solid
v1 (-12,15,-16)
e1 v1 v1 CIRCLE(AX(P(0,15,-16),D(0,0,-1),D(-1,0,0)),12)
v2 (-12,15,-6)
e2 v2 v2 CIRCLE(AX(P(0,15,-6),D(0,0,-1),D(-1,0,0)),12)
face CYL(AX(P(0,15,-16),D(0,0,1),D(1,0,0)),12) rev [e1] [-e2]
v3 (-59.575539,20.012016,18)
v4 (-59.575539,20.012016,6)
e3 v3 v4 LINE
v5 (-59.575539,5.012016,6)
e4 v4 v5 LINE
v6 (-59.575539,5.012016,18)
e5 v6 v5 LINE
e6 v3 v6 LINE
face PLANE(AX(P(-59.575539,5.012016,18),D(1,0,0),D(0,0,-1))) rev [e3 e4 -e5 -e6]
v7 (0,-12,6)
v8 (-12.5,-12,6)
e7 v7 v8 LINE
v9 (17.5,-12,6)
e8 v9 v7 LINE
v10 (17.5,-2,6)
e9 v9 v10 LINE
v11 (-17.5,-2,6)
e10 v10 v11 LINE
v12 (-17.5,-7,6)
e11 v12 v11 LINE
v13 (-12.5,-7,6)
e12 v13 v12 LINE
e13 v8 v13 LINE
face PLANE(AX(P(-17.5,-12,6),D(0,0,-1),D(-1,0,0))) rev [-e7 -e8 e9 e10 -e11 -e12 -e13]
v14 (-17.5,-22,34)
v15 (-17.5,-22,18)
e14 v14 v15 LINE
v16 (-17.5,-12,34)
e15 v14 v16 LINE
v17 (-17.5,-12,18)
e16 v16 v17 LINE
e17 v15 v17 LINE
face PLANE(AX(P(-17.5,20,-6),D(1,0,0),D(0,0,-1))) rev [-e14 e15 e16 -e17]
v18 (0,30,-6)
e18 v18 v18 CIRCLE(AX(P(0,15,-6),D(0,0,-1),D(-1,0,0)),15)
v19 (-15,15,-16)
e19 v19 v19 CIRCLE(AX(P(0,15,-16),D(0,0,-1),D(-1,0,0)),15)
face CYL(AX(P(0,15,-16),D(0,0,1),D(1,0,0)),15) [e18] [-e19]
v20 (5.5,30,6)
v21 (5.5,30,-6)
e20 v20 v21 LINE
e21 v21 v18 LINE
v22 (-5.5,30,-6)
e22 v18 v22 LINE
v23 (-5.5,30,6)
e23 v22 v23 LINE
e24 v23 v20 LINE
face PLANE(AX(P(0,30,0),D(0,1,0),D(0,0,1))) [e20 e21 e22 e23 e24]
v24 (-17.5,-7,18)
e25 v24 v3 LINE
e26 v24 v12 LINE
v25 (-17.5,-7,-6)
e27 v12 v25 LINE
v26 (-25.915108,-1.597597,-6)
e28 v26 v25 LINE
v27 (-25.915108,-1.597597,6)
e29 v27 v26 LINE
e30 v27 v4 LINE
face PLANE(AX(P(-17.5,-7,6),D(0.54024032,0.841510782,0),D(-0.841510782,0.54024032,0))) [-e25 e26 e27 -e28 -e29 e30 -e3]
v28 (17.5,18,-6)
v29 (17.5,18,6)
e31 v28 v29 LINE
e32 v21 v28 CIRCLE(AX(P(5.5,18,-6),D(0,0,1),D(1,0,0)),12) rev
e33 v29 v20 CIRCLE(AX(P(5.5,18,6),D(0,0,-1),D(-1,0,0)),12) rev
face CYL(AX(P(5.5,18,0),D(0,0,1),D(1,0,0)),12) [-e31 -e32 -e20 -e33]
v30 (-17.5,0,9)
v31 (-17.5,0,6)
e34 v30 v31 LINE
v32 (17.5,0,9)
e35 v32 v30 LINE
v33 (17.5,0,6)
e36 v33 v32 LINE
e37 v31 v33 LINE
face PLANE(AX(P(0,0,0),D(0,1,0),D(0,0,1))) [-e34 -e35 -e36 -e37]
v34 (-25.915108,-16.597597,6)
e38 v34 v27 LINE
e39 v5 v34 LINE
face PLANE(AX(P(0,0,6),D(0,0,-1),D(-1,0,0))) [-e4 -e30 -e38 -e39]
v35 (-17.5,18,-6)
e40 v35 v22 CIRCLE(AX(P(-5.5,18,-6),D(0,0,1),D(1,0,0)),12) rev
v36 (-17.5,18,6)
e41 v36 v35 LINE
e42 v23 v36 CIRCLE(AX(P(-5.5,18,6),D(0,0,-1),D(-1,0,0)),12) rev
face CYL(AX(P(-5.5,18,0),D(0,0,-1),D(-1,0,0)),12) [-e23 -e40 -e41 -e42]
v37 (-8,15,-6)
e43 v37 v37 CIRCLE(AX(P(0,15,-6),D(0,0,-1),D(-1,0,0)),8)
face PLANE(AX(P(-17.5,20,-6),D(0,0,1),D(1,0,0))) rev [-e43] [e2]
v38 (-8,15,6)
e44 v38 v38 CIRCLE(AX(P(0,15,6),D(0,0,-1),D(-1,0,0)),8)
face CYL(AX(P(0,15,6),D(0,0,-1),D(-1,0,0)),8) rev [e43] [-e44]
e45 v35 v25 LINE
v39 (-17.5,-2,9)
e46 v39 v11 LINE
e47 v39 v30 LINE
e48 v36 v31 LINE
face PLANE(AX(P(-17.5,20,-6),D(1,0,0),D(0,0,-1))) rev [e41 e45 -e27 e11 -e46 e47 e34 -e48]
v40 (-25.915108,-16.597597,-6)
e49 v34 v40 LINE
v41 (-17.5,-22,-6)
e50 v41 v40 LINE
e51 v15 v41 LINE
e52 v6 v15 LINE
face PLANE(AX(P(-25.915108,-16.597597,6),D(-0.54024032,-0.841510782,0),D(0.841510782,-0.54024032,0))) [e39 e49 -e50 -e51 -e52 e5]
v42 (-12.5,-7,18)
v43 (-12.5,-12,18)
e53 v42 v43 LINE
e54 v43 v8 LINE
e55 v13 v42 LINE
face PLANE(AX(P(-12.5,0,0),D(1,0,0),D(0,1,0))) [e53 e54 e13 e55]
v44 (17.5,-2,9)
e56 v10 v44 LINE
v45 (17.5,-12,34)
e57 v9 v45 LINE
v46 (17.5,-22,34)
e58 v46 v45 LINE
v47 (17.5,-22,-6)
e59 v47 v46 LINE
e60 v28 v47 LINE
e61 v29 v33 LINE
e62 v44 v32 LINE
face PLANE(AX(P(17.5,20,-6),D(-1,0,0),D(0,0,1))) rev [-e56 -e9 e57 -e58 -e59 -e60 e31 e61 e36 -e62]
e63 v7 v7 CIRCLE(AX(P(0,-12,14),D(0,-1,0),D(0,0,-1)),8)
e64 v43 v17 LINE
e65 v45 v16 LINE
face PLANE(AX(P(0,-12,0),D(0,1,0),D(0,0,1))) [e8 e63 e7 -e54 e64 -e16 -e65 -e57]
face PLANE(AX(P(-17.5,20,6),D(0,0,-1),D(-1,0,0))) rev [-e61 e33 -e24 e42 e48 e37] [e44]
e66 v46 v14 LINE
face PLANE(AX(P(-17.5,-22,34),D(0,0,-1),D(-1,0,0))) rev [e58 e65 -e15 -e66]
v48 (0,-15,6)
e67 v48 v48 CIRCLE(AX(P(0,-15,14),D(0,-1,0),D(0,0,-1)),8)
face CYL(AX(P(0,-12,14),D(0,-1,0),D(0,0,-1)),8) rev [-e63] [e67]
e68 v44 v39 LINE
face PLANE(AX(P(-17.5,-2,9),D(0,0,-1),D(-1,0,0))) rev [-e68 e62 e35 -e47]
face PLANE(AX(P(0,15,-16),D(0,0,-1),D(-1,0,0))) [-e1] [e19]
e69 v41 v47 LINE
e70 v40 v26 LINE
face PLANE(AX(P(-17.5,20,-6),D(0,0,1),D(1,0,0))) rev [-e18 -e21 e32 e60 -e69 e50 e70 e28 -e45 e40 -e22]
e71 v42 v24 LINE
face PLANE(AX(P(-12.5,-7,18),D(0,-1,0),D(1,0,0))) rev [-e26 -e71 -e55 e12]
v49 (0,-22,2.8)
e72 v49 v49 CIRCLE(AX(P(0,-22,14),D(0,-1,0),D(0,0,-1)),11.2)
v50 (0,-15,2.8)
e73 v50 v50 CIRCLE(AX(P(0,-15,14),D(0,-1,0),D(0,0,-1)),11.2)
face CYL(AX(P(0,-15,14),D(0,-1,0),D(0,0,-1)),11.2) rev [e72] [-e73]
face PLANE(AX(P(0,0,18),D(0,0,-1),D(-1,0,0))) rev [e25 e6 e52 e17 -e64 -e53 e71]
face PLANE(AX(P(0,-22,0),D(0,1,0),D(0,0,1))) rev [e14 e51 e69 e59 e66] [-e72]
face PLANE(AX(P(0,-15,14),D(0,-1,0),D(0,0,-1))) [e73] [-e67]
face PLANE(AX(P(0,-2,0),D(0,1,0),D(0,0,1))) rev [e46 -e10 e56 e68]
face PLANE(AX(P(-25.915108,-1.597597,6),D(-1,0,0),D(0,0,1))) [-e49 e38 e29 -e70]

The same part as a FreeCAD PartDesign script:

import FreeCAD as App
import Part
import Sketcher

V = App.Vector
Q = App.Units.Quantity


def edges_at(feature, points):
    """Names of the edges that pass closest to the given points."""
    edges = feature.Shape.Edges
    near = lambda p: min(range(len(edges)), key=lambda i: edges[i].distToShape(Part.Vertex(*p))[0])
    return sorted({f"Edge{near(p) + 1}" for p in points})

doc = App.newDocument("Part")
params = doc.addObject("Spreadsheet::Sheet", "Params")
for row, (alias, value) in enumerate([
    ("sketch1_width", "35 mm"),
    ("sketch1_height", "12 mm"),
    ("pad1_length", "20 mm"),
    ("sketch2_width", "35 mm"),
    ("sketch2_height", "12 mm"),
    ("pad2_length", "10 mm"),
    ("sketch3_diameter", "16 mm"),
    ("pocket1_length", "12 mm"),
    ("fillet_radius", "12 mm"),
    ("sketch4_diameter", "30 mm"),
    ("sketch4_diameter2", "24 mm"),
    ("pad3_length", "10 mm"),
    ("sketch5_width", "35 mm"),
    ("sketch5_height", "15 mm"),
    ("pad4_length", "2 mm"),
    ("sketch6_width", "35 mm"),
    ("sketch6_height", "12 mm"),
    ("pad5_length", "10 mm"),
    ("sketch7_width", "35 mm"),
    ("sketch7_height", "40 mm"),
    ("pad6_length", "10 mm"),
    ("sketch8_diameter", "22.4 mm"),
    ("pocket2_length", "7 mm"),
    ("sketch9_diameter", "16 mm"),
    ("pocket3_length", "3 mm"),
    ("sketch10_height", "15 mm"),
    ("sketch10_length", "10 mm"),
    ("pad7_length", "12 mm"),
    ("sketch11_height", "15 mm"),
    ("sketch11_length", "50 mm"),
    ("pad8_length", "12 mm"),
    ("sketch12_width", "5 mm"),
    ("sketch12_height", "12 mm"),
    ("pad9_length", "5 mm"),
], start=1):
    params.set(f"A{row}", alias)
    params.set(f"B{row}", "=" + value)
    params.setAlias(f"B{row}", alias)

body = doc.addObject("PartDesign::Body", "Body")

# Sketch on XZ plane
sketch1 = doc.addObject("Sketcher::SketchObject", "Sketch")
body.addObject(sketch1)
sketch1.AttachmentSupport = (doc.XZ_Plane, [""])
sketch1.MapMode = "FlatFace"
sketch1.addGeometry([
    Part.LineSegment(V(-18, -6, 0), V(-18, 6, 0)),
    Part.LineSegment(V(-18, 6, 0), V(18, 6, 0)),
    Part.LineSegment(V(18, 6, 0), V(18, -6, 0)),
    Part.LineSegment(V(18, -6, 0), V(-18, -6, 0)),
], False)
sketch1.addConstraint([
    Sketcher.Constraint("Coincident", 0, 2, 1, 1),
    Sketcher.Constraint("Coincident", 1, 2, 2, 1),
    Sketcher.Constraint("Coincident", 2, 2, 3, 1),
    Sketcher.Constraint("Coincident", 3, 2, 0, 1),
    Sketcher.Constraint("Vertical", 0),
    Sketcher.Constraint("Horizontal", 1),
    Sketcher.Constraint("Vertical", 2),
    Sketcher.Constraint("Horizontal", 3),
    Sketcher.Constraint("Symmetric", 0, 2, 2, 2, -1, 1),
    Sketcher.Constraint("DistanceX", 1, 1, 1, 2, 35.0),
    Sketcher.Constraint("DistanceY", 0, 1, 0, 2, 12.0),
])
sketch1.setExpression("Constraints[9]", "Params.sketch1_width")
sketch1.setExpression("Constraints[10]", "Params.sketch1_height")
pad1 = doc.addObject("PartDesign::Pad", "Pad")
body.addObject(pad1)
pad1.Profile = sketch1
pad1.setExpression("Length", "Params.pad1_length")
pad1.Reversed = True

# Sketch on XZ plane
sketch2 = doc.addObject("Sketcher::SketchObject", "Sketch001")
body.addObject(sketch2)
sketch2.AttachmentSupport = (doc.XZ_Plane, [""])
sketch2.MapMode = "FlatFace"
sketch2.AttachmentOffset = App.Placement(V(0, 0, -20), App.Rotation())
sketch2.addGeometry([
    Part.LineSegment(V(-18, -6, 0), V(-18, 6, 0)),
    Part.LineSegment(V(-18, 6, 0), V(18, 6, 0)),
    Part.LineSegment(V(18, 6, 0), V(18, -6, 0)),
    Part.LineSegment(V(18, -6, 0), V(-18, -6, 0)),
], False)
sketch2.addConstraint([
    Sketcher.Constraint("Coincident", 0, 2, 1, 1),
    Sketcher.Constraint("Coincident", 1, 2, 2, 1),
    Sketcher.Constraint("Coincident", 2, 2, 3, 1),
    Sketcher.Constraint("Coincident", 3, 2, 0, 1),
    Sketcher.Constraint("Vertical", 0),
    Sketcher.Constraint("Horizontal", 1),
    Sketcher.Constraint("Vertical", 2),
    Sketcher.Constraint("Horizontal", 3),
    Sketcher.Constraint("Symmetric", 0, 2, 2, 2, -1, 1),
    Sketcher.Constraint("DistanceX", 1, 1, 1, 2, 35.0),
    Sketcher.Constraint("DistanceY", 0, 1, 0, 2, 12.0),
])
sketch2.setExpression("Constraints[9]", "Params.sketch2_width")
sketch2.setExpression("Constraints[10]", "Params.sketch2_height")
pad2 = doc.addObject("PartDesign::Pad", "Pad001")
body.addObject(pad2)
pad2.Profile = sketch2
pad2.setExpression("Length", "Params.pad2_length")
pad2.Reversed = True

# Sketch on XY plane
sketch3 = doc.addObject("Sketcher::SketchObject", "Sketch002")
body.addObject(sketch3)
sketch3.AttachmentSupport = (doc.XY_Plane, [""])
sketch3.MapMode = "FlatFace"
sketch3.AttachmentOffset = App.Placement(V(0, 0, -6), App.Rotation())
sketch3.addGeometry(Part.Circle(V(0, 15, 0), V(0, 0, 1), 8), False)
sketch3.addConstraint([
    Sketcher.Constraint("PointOnObject", 0, 3, -2),
    Sketcher.Constraint("Diameter", 0, 16.0),
    Sketcher.Constraint("DistanceY", -1, 1, 0, 3, 15.0),
])
sketch3.setExpression("Constraints[1]", "Params.sketch3_diameter")
pocket1 = doc.addObject("PartDesign::Pocket", "Pocket")
body.addObject(pocket1)
pocket1.Profile = sketch3
pocket1.setExpression("Length", "Params.pocket1_length")
pocket1.Reversed = True
doc.recompute()

fillet = doc.addObject("PartDesign::Fillet", "Fillet")
body.addObject(fillet)
fillet.Base = (pocket1, edges_at(pocket1, [(-17.5, 30, 0), (17.5, 30, 0)]))
fillet.setExpression("Radius", "Params.fillet_radius")

# Sketch on XY plane
sketch4 = doc.addObject("Sketcher::SketchObject", "Sketch003")
body.addObject(sketch4)
sketch4.AttachmentSupport = (doc.XY_Plane, [""])
sketch4.MapMode = "FlatFace"
sketch4.AttachmentOffset = App.Placement(V(0, 0, -6), App.Rotation())
sketch4.addGeometry([
    Part.Circle(V(0, 15, 0), V(0, 0, 1), 15),
    Part.Circle(V(0, 15, 0), V(0, 0, 1), 12),
], False)
sketch4.addConstraint([
    Sketcher.Constraint("Coincident", 1, 3, 0, 3),
    Sketcher.Constraint("PointOnObject", 0, 3, -2),
    Sketcher.Constraint("Diameter", 0, 30.0),
    Sketcher.Constraint("Diameter", 1, 24.0),
    Sketcher.Constraint("DistanceY", -1, 1, 0, 3, 15.0),
])
sketch4.setExpression("Constraints[2]", "Params.sketch4_diameter")
sketch4.setExpression("Constraints[3]", "Params.sketch4_diameter2")
pad3 = doc.addObject("PartDesign::Pad", "Pad002")
body.addObject(pad3)
pad3.Profile = sketch4
pad3.setExpression("Length", "Params.pad3_length")
pad3.Reversed = True

# Sketch on XZ plane
sketch5 = doc.addObject("Sketcher::SketchObject", "Sketch004")
body.addObject(sketch5)
sketch5.AttachmentSupport = (doc.XZ_Plane, [""])
sketch5.MapMode = "FlatFace"
sketch5.addGeometry([
    Part.LineSegment(V(-18, 9, 0), V(-18, -6, 0)),
    Part.LineSegment(V(-18, -6, 0), V(18, -6, 0)),
    Part.LineSegment(V(18, -6, 0), V(18, 9, 0)),
    Part.LineSegment(V(18, 9, 0), V(-18, 9, 0)),
], False)
sketch5.addConstraint([
    Sketcher.Constraint("Coincident", 0, 2, 1, 1),
    Sketcher.Constraint("Coincident", 1, 2, 2, 1),
    Sketcher.Constraint("Coincident", 2, 2, 3, 1),
    Sketcher.Constraint("Coincident", 3, 2, 0, 1),
    Sketcher.Constraint("Vertical", 0),
    Sketcher.Constraint("Horizontal", 1),
    Sketcher.Constraint("Vertical", 2),
    Sketcher.Constraint("Horizontal", 3),
    Sketcher.Constraint("DistanceX", 1, 1, 1, 2, 35.0),
    Sketcher.Constraint("DistanceY", 0, 2, 0, 1, 15.0),
    Sketcher.Constraint("DistanceY", 0, 2, -1, 1, 6.0),
    Sketcher.Constraint("DistanceX", 0, 2, -1, 1, 17.5),
])
sketch5.setExpression("Constraints[8]", "Params.sketch5_width")
sketch5.setExpression("Constraints[9]", "Params.sketch5_height")
pad4 = doc.addObject("PartDesign::Pad", "Pad003")
body.addObject(pad4)
pad4.Profile = sketch5
pad4.setExpression("Length", "Params.pad4_length")

# Sketch on XZ plane
sketch6 = doc.addObject("Sketcher::SketchObject", "Sketch005")
body.addObject(sketch6)
sketch6.AttachmentSupport = (doc.XZ_Plane, [""])
sketch6.MapMode = "FlatFace"
sketch6.AttachmentOffset = App.Placement(V(0, 0, 2), App.Rotation())
sketch6.addGeometry([
    Part.LineSegment(V(-18, 6, 0), V(-18, -6, 0)),
    Part.LineSegment(V(-18, -6, 0), V(18, -6, 0)),
    Part.LineSegment(V(18, -6, 0), V(18, 6, 0)),
    Part.LineSegment(V(18, 6, 0), V(-18, 6, 0)),
], False)
sketch6.addConstraint([
    Sketcher.Constraint("Coincident", 0, 2, 1, 1),
    Sketcher.Constraint("Coincident", 1, 2, 2, 1),
    Sketcher.Constraint("Coincident", 2, 2, 3, 1),
    Sketcher.Constraint("Coincident", 3, 2, 0, 1),
    Sketcher.Constraint("Vertical", 0),
    Sketcher.Constraint("Horizontal", 1),
    Sketcher.Constraint("Vertical", 2),
    Sketcher.Constraint("Horizontal", 3),
    Sketcher.Constraint("Symmetric", 0, 2, 2, 2, -1, 1),
    Sketcher.Constraint("DistanceX", 1, 1, 1, 2, 35.0),
    Sketcher.Constraint("DistanceY", 0, 2, 0, 1, 12.0),
])
sketch6.setExpression("Constraints[9]", "Params.sketch6_width")
sketch6.setExpression("Constraints[10]", "Params.sketch6_height")
pad5 = doc.addObject("PartDesign::Pad", "Pad004")
body.addObject(pad5)
pad5.Profile = sketch6
pad5.setExpression("Length", "Params.pad5_length")

# Sketch on XZ plane
sketch7 = doc.addObject("Sketcher::SketchObject", "Sketch006")
body.addObject(sketch7)
sketch7.AttachmentSupport = (doc.XZ_Plane, [""])
sketch7.MapMode = "FlatFace"
sketch7.AttachmentOffset = App.Placement(V(0, 0, 12), App.Rotation())
sketch7.addGeometry([
    Part.LineSegment(V(-18, 34, 0), V(-18, -6, 0)),
    Part.LineSegment(V(-18, -6, 0), V(18, -6, 0)),
    Part.LineSegment(V(18, -6, 0), V(18, 34, 0)),
    Part.LineSegment(V(18, 34, 0), V(-18, 34, 0)),
], False)
sketch7.addConstraint([
    Sketcher.Constraint("Coincident", 0, 2, 1, 1),
    Sketcher.Constraint("Coincident", 1, 2, 2, 1),
    Sketcher.Constraint("Coincident", 2, 2, 3, 1),
    Sketcher.Constraint("Coincident", 3, 2, 0, 1),
    Sketcher.Constraint("Vertical", 0),
    Sketcher.Constraint("Horizontal", 1),
    Sketcher.Constraint("Vertical", 2),
    Sketcher.Constraint("Horizontal", 3),
    Sketcher.Constraint("DistanceX", 1, 1, 1, 2, 35.0),
    Sketcher.Constraint("DistanceY", 0, 2, 0, 1, 40.0),
    Sketcher.Constraint("DistanceY", 0, 2, -1, 1, 6.0),
    Sketcher.Constraint("DistanceX", 0, 2, -1, 1, 17.5),
])
sketch7.setExpression("Constraints[8]", "Params.sketch7_width")
sketch7.setExpression("Constraints[9]", "Params.sketch7_height")
pad6 = doc.addObject("PartDesign::Pad", "Pad005")
body.addObject(pad6)
pad6.Profile = sketch7
pad6.setExpression("Length", "Params.pad6_length")

# Sketch on XZ plane
sketch8 = doc.addObject("Sketcher::SketchObject", "Sketch007")
body.addObject(sketch8)
sketch8.AttachmentSupport = (doc.XZ_Plane, [""])
sketch8.MapMode = "FlatFace"
sketch8.AttachmentOffset = App.Placement(V(0, 0, 22), App.Rotation())
sketch8.addGeometry(Part.Circle(V(0, 14, 0), V(0, 0, 1), 11), False)
sketch8.addConstraint([
    Sketcher.Constraint("PointOnObject", 0, 3, -2),
    Sketcher.Constraint("Diameter", 0, 22.4),
    Sketcher.Constraint("DistanceY", -1, 1, 0, 3, 14.0),
])
sketch8.setExpression("Constraints[1]", "Params.sketch8_diameter")
pocket2 = doc.addObject("PartDesign::Pocket", "Pocket001")
body.addObject(pocket2)
pocket2.Profile = sketch8
pocket2.setExpression("Length", "Params.pocket2_length")

# Sketch on XZ plane
sketch9 = doc.addObject("Sketcher::SketchObject", "Sketch008")
body.addObject(sketch9)
sketch9.AttachmentSupport = (doc.XZ_Plane, [""])
sketch9.MapMode = "FlatFace"
sketch9.AttachmentOffset = App.Placement(V(0, 0, 15), App.Rotation())
sketch9.addGeometry(Part.Circle(V(0, 14, 0), V(0, 0, 1), 8), False)
sketch9.addConstraint([
    Sketcher.Constraint("PointOnObject", 0, 3, -2),
    Sketcher.Constraint("Diameter", 0, 16.0),
    Sketcher.Constraint("DistanceY", -1, 1, 0, 3, 14.0),
])
sketch9.setExpression("Constraints[1]", "Params.sketch9_diameter")
pocket3 = doc.addObject("PartDesign::Pocket", "Pocket002")
body.addObject(pocket3)
pocket3.Profile = sketch9
pocket3.setExpression("Length", "Params.pocket3_length")

# Sketch on XY plane
sketch10 = doc.addObject("Sketcher::SketchObject", "Sketch009")
body.addObject(sketch10)
sketch10.AttachmentSupport = (doc.XY_Plane, [""])
sketch10.MapMode = "FlatFace"
sketch10.AttachmentOffset = App.Placement(V(0, 0, -6), App.Rotation())
sketch10.addGeometry([
    Part.LineSegment(V(-18, -7, 0), V(-18, -22, 0)),
    Part.LineSegment(V(-18, -22, 0), V(-26, -17, 0)),
    Part.LineSegment(V(-26, -17, 0), V(-26, -2, 0)),
    Part.LineSegment(V(-26, -2, 0), V(-18, -7, 0)),
], False)
sketch10.addConstraint([
    Sketcher.Constraint("Coincident", 0, 2, 1, 1),
    Sketcher.Constraint("Coincident", 1, 2, 2, 1),
    Sketcher.Constraint("Coincident", 2, 2, 3, 1),
    Sketcher.Constraint("Coincident", 3, 2, 0, 1),
    Sketcher.Constraint("Vertical", 0),
    Sketcher.Constraint("Vertical", 2),
    Sketcher.Constraint("Parallel", 1, 3),
    Sketcher.Constraint("DistanceY", 0, 2, 0, 1, 15.0),
    Sketcher.Constraint("Distance", 1, 10.0),
    Sketcher.Constraint("DistanceY", 0, 2, -1, 1, 22.0),
    Sketcher.Constraint("Angle", 1, Q("147.3 deg")),
    Sketcher.Constraint("DistanceX", 0, 2, -1, 1, 17.5),
])
sketch10.setExpression("Constraints[7]", "Params.sketch10_height")
sketch10.setExpression("Constraints[8]", "Params.sketch10_length")
pad7 = doc.addObject("PartDesign::Pad", "Pad006")
body.addObject(pad7)
pad7.Profile = sketch10
pad7.setExpression("Length", "Params.pad7_length")

# Sketch on XY plane
sketch11 = doc.addObject("Sketcher::SketchObject", "Sketch010")
body.addObject(sketch11)
sketch11.AttachmentSupport = (doc.XY_Plane, [""])
sketch11.MapMode = "FlatFace"
sketch11.AttachmentOffset = App.Placement(V(0, 0, 6), App.Rotation())
sketch11.addGeometry([
    Part.LineSegment(V(-18, -22, 0), V(-18, -7, 0)),
    Part.LineSegment(V(-18, -7, 0), V(-60, 20, 0)),
    Part.LineSegment(V(-60, 20, 0), V(-60, 5, 0)),
    Part.LineSegment(V(-60, 5, 0), V(-18, -22, 0)),
], False)
sketch11.addConstraint([
    Sketcher.Constraint("Coincident", 0, 2, 1, 1),
    Sketcher.Constraint("Coincident", 1, 2, 2, 1),
    Sketcher.Constraint("Coincident", 2, 2, 3, 1),
    Sketcher.Constraint("Coincident", 3, 2, 0, 1),
    Sketcher.Constraint("Vertical", 0),
    Sketcher.Constraint("Vertical", 2),
    Sketcher.Constraint("Parallel", 1, 3),
    Sketcher.Constraint("DistanceY", 0, 1, 0, 2, 15.0),
    Sketcher.Constraint("Distance", 1, 50.0),
    Sketcher.Constraint("DistanceY", 0, 2, -1, 1, 7.0),
    Sketcher.Constraint("Angle", 1, Q("147.3 deg")),
    Sketcher.Constraint("DistanceX", 0, 2, -1, 1, 17.5),
])
sketch11.setExpression("Constraints[7]", "Params.sketch11_height")
sketch11.setExpression("Constraints[8]", "Params.sketch11_length")
pad8 = doc.addObject("PartDesign::Pad", "Pad007")
body.addObject(pad8)
pad8.Profile = sketch11
pad8.setExpression("Length", "Params.pad8_length")

# Sketch on YZ plane
sketch12 = doc.addObject("Sketcher::SketchObject", "Sketch011")
body.addObject(sketch12)
sketch12.AttachmentSupport = (doc.YZ_Plane, [""])
sketch12.MapMode = "FlatFace"
sketch12.AttachmentOffset = App.Placement(V(0, 0, -17.5), App.Rotation())
sketch12.addGeometry([
    Part.LineSegment(V(-7, 18, 0), V(-12, 18, 0)),
    Part.LineSegment(V(-12, 18, 0), V(-12, 6, 0)),
    Part.LineSegment(V(-12, 6, 0), V(-7, 6, 0)),
    Part.LineSegment(V(-7, 6, 0), V(-7, 18, 0)),
], False)
sketch12.addConstraint([
    Sketcher.Constraint("Coincident", 0, 2, 1, 1),
    Sketcher.Constraint("Coincident", 1, 2, 2, 1),
    Sketcher.Constraint("Coincident", 2, 2, 3, 1),
    Sketcher.Constraint("Coincident", 3, 2, 0, 1),
    Sketcher.Constraint("Horizontal", 0),
    Sketcher.Constraint("Vertical", 1),
    Sketcher.Constraint("Horizontal", 2),
    Sketcher.Constraint("Vertical", 3),
    Sketcher.Constraint("DistanceX", 0, 2, 0, 1, 5.0),
    Sketcher.Constraint("DistanceY", 1, 2, 1, 1, 12.0),
    Sketcher.Constraint("DistanceX", 0, 2, -1, 1, 12.0),
    Sketcher.Constraint("DistanceY", -1, 1, 0, 2, 18.0),
])
sketch12.setExpression("Constraints[8]", "Params.sketch12_width")
sketch12.setExpression("Constraints[9]", "Params.sketch12_height")
pad9 = doc.addObject("PartDesign::Pad", "Pad008")
body.addObject(pad9)
pad9.Profile = sketch12
pad9.setExpression("Length", "Params.pad9_length")

doc.recompute()
